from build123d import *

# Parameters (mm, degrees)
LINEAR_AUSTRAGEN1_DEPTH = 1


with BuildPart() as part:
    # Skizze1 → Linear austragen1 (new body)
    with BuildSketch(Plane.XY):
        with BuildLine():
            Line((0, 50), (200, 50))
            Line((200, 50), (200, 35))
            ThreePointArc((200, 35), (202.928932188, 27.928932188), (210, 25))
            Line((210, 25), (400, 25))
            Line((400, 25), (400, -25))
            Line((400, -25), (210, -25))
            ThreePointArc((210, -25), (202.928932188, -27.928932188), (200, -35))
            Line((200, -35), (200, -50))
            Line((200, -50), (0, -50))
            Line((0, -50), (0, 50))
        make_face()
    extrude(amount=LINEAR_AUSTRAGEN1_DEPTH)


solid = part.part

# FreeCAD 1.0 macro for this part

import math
import FreeCAD as App
import Part
import Sketcher
from FreeCAD import Vector

doc = App.newDocument("Part")
body = doc.addObject("PartDesign::Body", "Body")

sketch1 = body.newObject("Sketcher::SketchObject", "Sketch")
sketch1.AttachmentSupport = (doc.getObject("XY_Plane"), [""])
sketch1.MapMode = "FlatFace"
sketch1.addGeometry(Part.LineSegment(Vector(200, 50, 0), Vector(0, 50, 0)), False)
sketch1.addGeometry(Part.LineSegment(Vector(0, 50, 0), Vector(0, -50, 0)), False)
sketch1.addGeometry(Part.LineSegment(Vector(0, -50, 0), Vector(200, -50, 0)), False)
sketch1.addGeometry(Part.LineSegment(Vector(200, -50, 0), Vector(200, -35, 0)), False)
sketch1.addGeometry(Part.ArcOfCircle(Part.Circle(Vector(210, -35, 0), Vector(0, 0, 1), 10), math.radians(90), math.radians(180)), False)
sketch1.addGeometry(Part.LineSegment(Vector(210, -25, 0), Vector(400, -25, 0)), False)
sketch1.addGeometry(Part.LineSegment(Vector(400, -25, 0), Vector(400, 25, 0)), False)
sketch1.addGeometry(Part.LineSegment(Vector(400, 25, 0), Vector(210, 25, 0)), False)
sketch1.addGeometry(Part.ArcOfCircle(Part.Circle(Vector(210, 35, 0), Vector(0, 0, 1), 10), math.radians(180), math.radians(270)), False)
sketch1.addGeometry(Part.LineSegment(Vector(200, 35, 0), Vector(200, 50, 0)), False)
sketch1.addConstraint(Sketcher.Constraint("Coincident", 0, 2, 1, 1))
sketch1.addConstraint(Sketcher.Constraint("Coincident", 1, 2, 2, 1))
sketch1.addConstraint(Sketcher.Constraint("Coincident", 2, 2, 3, 1))
sketch1.addConstraint(Sketcher.Constraint("Tangent", 3, 2, 4, 2))
sketch1.addConstraint(Sketcher.Constraint("Tangent", 4, 1, 5, 1))
sketch1.addConstraint(Sketcher.Constraint("Coincident", 5, 2, 6, 1))
sketch1.addConstraint(Sketcher.Constraint("Coincident", 6, 2, 7, 1))
sketch1.addConstraint(Sketcher.Constraint("Tangent", 7, 2, 8, 2))
sketch1.addConstraint(Sketcher.Constraint("Tangent", 8, 1, 9, 1))
sketch1.addConstraint(Sketcher.Constraint("Coincident", 9, 2, 0, 1))
sketch1.addConstraint(Sketcher.Constraint("Horizontal", 0))
sketch1.addConstraint(Sketcher.Constraint("Vertical", 1))
sketch1.addConstraint(Sketcher.Constraint("Horizontal", 2))
sketch1.addConstraint(Sketcher.Constraint("Vertical", 3))
sketch1.addConstraint(Sketcher.Constraint("Horizontal", 5))
sketch1.addConstraint(Sketcher.Constraint("Vertical", 6))
sketch1.addConstraint(Sketcher.Constraint("Horizontal", 7))
sketch1.addConstraint(Sketcher.Constraint("Vertical", 9))
sketch1.addConstraint(Sketcher.Constraint("Equal", 4, 8))
sketch1.addConstraint(Sketcher.Constraint("Symmetric", 0, 2, 1, 2, -1, 1))
sketch1.addConstraint(Sketcher.Constraint("Symmetric", 4, 3, 8, 3, -1))
sketch1.addConstraint(Sketcher.Constraint("Radius", 4, 10.0))
sketch1.addConstraint(Sketcher.Constraint("DistanceX", 0, 2, 0, 1, 200.0))
sketch1.addConstraint(Sketcher.Constraint("DistanceX", 5, 1, 5, 2, 190.0))
sketch1.addConstraint(Sketcher.Constraint("DistanceY", 1, 2, 1, 1, 100.0))
sketch1.addConstraint(Sketcher.Constraint("DistanceY", 3, 1, 3, 2, 15.0))
pad1 = body.newObject("PartDesign::Pad", "Pad")
pad1.Profile = sketch1
pad1.Length = 1

doc.recompute()
